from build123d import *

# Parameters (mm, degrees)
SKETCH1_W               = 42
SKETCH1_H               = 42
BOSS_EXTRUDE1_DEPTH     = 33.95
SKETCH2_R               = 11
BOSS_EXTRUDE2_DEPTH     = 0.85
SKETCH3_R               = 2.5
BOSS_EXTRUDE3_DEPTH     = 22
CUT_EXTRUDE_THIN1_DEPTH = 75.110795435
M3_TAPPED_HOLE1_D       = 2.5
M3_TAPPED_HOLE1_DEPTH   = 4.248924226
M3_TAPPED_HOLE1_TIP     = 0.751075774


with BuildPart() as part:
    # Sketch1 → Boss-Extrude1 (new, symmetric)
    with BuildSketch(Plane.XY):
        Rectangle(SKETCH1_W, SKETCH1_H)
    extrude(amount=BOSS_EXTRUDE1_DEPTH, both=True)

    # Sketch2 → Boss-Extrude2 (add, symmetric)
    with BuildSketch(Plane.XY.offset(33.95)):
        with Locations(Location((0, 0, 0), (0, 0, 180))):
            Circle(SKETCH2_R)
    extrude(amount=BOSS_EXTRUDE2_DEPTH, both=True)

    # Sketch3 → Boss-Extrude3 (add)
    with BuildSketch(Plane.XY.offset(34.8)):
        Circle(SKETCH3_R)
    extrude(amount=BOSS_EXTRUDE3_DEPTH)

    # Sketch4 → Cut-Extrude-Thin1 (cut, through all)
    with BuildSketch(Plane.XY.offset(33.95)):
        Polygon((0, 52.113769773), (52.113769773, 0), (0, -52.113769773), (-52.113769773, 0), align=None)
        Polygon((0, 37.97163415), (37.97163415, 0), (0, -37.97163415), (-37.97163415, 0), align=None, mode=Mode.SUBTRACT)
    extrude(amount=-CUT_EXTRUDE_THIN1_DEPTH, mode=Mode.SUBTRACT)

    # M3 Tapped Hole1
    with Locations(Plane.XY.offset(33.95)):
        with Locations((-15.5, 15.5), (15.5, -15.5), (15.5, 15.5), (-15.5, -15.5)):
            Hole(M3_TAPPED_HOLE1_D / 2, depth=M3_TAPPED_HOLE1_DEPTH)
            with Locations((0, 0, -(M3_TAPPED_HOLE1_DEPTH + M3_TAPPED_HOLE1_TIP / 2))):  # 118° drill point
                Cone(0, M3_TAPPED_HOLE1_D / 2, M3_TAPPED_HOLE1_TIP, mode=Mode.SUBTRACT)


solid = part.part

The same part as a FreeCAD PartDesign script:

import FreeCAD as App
import Part
import Sketcher

V = App.Vector

doc = App.newDocument("Part")
body = doc.addObject("PartDesign::Body", "Body")

# Sketch on XY plane
sketch1 = body.newObject("Sketcher::SketchObject", "Sketch")
sketch1.AttachmentSupport = (doc.getObject("XY_Plane"), [""])
sketch1.MapMode = "FlatFace"
sketch1.addGeometry(Part.LineSegment(V(-21, 21, 0), V(-21, -21, 0)), False)
sketch1.addGeometry(Part.LineSegment(V(-21, -21, 0), V(21, -21, 0)), False)
sketch1.addGeometry(Part.LineSegment(V(21, -21, 0), V(21, 21, 0)), False)
sketch1.addGeometry(Part.LineSegment(V(21, 21, 0), V(-21, 21, 0)), False)
sketch1.addConstraint(Sketcher.Constraint("Coincident", 0, 2, 1, 1))
sketch1.addConstraint(Sketcher.Constraint("Coincident", 1, 2, 2, 1))
sketch1.addConstraint(Sketcher.Constraint("Coincident", 2, 2, 3, 1))
sketch1.addConstraint(Sketcher.Constraint("Coincident", 3, 2, 0, 1))
sketch1.addConstraint(Sketcher.Constraint("Vertical", 0))
sketch1.addConstraint(Sketcher.Constraint("Horizontal", 1))
sketch1.addConstraint(Sketcher.Constraint("Vertical", 2))
sketch1.addConstraint(Sketcher.Constraint("Horizontal", 3))
sketch1.addConstraint(Sketcher.Constraint("Symmetric", 0, 2, 2, 2, -1, 1))
sketch1.addConstraint(Sketcher.Constraint("Equal", 3, 0))
sketch1.addConstraint(Sketcher.Constraint("DistanceX", 1, 1, 1, 2, 42.0))
pad1 = body.newObject("PartDesign::Pad", "Pad")
pad1.Profile = sketch1
pad1.Length = 67.9
pad1.Midplane = True

# Sketch on XY plane
sketch2 = body.newObject("Sketcher::SketchObject", "Sketch001")
sketch2.AttachmentSupport = (doc.getObject("XY_Plane"), [""])
sketch2.MapMode = "FlatFace"
sketch2.AttachmentOffset = App.Placement(V(0, 0, 33.95), App.Rotation())
sketch2.addGeometry(Part.Circle(V(0, 0, 0), V(0, 0, 1), 11), False)
sketch2.addConstraint(Sketcher.Constraint("Coincident", 0, 3, -1, 1))
sketch2.addConstraint(Sketcher.Constraint("Diameter", 0, 22.0))
pad2 = body.newObject("PartDesign::Pad", "Pad001")
pad2.Profile = sketch2
pad2.Length = 1.7
pad2.Midplane = True

# Sketch on XY plane
sketch3 = body.newObject("Sketcher::SketchObject", "Sketch002")
sketch3.AttachmentSupport = (doc.getObject("XY_Plane"), [""])
sketch3.MapMode = "FlatFace"
sketch3.AttachmentOffset = App.Placement(V(0, 0, 34.8), App.Rotation())
sketch3.addGeometry(Part.Circle(V(0, 0, 0), V(0, 0, 1), 2.5), False)
sketch3.addConstraint(Sketcher.Constraint("Coincident", 0, 3, -1, 1))
sketch3.addConstraint(Sketcher.Constraint("Diameter", 0, 5.0))
pad3 = body.newObject("PartDesign::Pad", "Pad002")
pad3.Profile = sketch3
pad3.Length = 22

# Sketch on XY plane
sketch4 = body.newObject("Sketcher::SketchObject", "Sketch003")
sketch4.AttachmentSupport = (doc.getObject("XY_Plane"), [""])
sketch4.MapMode = "FlatFace"
sketch4.AttachmentOffset = App.Placement(V(0, 0, 33.95), App.Rotation())
sketch4.addGeometry(Part.LineSegment(V(52, 0, 0), V(0, 52, 0)), False)
sketch4.addGeometry(Part.LineSegment(V(0, 52, 0), V(-52, 0, 0)), False)
sketch4.addGeometry(Part.LineSegment(V(-52, 0, 0), V(0, -52, 0)), False)
sketch4.addGeometry(Part.LineSegment(V(0, -52, 0), V(52, 0, 0)), False)
sketch4.addGeometry(Part.LineSegment(V(0, 38, 0), V(38, 0, 0)), False)
sketch4.addGeometry(Part.LineSegment(V(38, 0, 0), V(0, -38, 0)), False)
sketch4.addGeometry(Part.LineSegment(V(0, -38, 0), V(-38, 0, 0)), False)
sketch4.addGeometry(Part.LineSegment(V(-38, 0, 0), V(0, 38, 0)), False)
sketch4.addConstraint(Sketcher.Constraint("Coincident", 0, 2, 1, 1))
sketch4.addConstraint(Sketcher.Constraint("Coincident", 1, 2, 2, 1))
sketch4.addConstraint(Sketcher.Constraint("Coincident", 2, 2, 3, 1))
sketch4.addConstraint(Sketcher.Constraint("Coincident", 3, 2, 0, 1))
sketch4.addConstraint(Sketcher.Constraint("Coincident", 4, 2, 5, 1))
sketch4.addConstraint(Sketcher.Constraint("Coincident", 5, 2, 6, 1))
sketch4.addConstraint(Sketcher.Constraint("Coincident", 6, 2, 7, 1))
sketch4.addConstraint(Sketcher.Constraint("Coincident", 7, 2, 4, 1))
sketch4.addConstraint(Sketcher.Constraint("Symmetric", 0, 2, 2, 2, -1, 1))
sketch4.addConstraint(Sketcher.Constraint("Symmetric", 1, 2, 3, 2, -1, 1))
sketch4.addConstraint(Sketcher.Constraint("Symmetric", 4, 2, 6, 2, -1, 1))
sketch4.addConstraint(Sketcher.Constraint("Symmetric", 5, 2, 7, 2, -1, 1))
sketch4.addConstraint(Sketcher.Constraint("PointOnObject", 0, 2, -2))
sketch4.addConstraint(Sketcher.Constraint("PointOnObject", 1, 2, -1))
sketch4.addConstraint(Sketcher.Constraint("PointOnObject", 4, 2, -1))
sketch4.addConstraint(Sketcher.Constraint("PointOnObject", 5, 2, -2))
sketch4.addConstraint(Sketcher.Constraint("Perpendicular", 0, 1))
sketch4.addConstraint(Sketcher.Constraint("Perpendicular", 3, 4))
sketch4.addConstraint(Sketcher.Constraint("Distance", 0, 73.7))
sketch4.addConstraint(Sketcher.Constraint("Distance", 4, 53.7))
pocket1 = body.newObject("PartDesign::Pocket", "Pocket")
pocket1.Profile = sketch4
pocket1.Type = "ThroughAll"

# Sketch on XY plane
sketch5 = body.newObject("Sketcher::SketchObject", "Sketch004")
sketch5.AttachmentSupport = (doc.getObject("XY_Plane"), [""])
sketch5.MapMode = "FlatFace"
sketch5.AttachmentOffset = App.Placement(V(0, 0, 33.95), App.Rotation())
sketch5.addGeometry(Part.Circle(V(-15.5, 15.5, 0), V(0, 0, 1), 1.2), False)
sketch5.addGeometry(Part.Circle(V(15.5, -15.5, 0), V(0, 0, 1), 1.2), False)
sketch5.addGeometry(Part.Circle(V(15.5, 15.5, 0), V(0, 0, 1), 1.2), False)
sketch5.addGeometry(Part.Circle(V(-15.5, -15.5, 0), V(0, 0, 1), 1.2), False)
sketch5.addConstraint(Sketcher.Constraint("Equal", 0, 1))
sketch5.addConstraint(Sketcher.Constraint("Equal", 1, 2))
sketch5.addConstraint(Sketcher.Constraint("Equal", 2, 3))
sketch5.addConstraint(Sketcher.Constraint("Symmetric", 0, 3, 1, 3, -1, 1))
sketch5.addConstraint(Sketcher.Constraint("Symmetric", 2, 3, 3, 3, -1, 1))
sketch5.addConstraint(Sketcher.Constraint("Symmetric", 0, 3, 2, 3, -2))
sketch5.addConstraint(Sketcher.Constraint("Diameter", 0, 2.5))
sketch5.addConstraint(Sketcher.Constraint("DistanceX", 0, 3, 1, 3, 31.0))
sketch5.addConstraint(Sketcher.Constraint("DistanceY", 1, 3, 0, 3, 31.0))
doc.recompute()
hole = body.newObject("PartDesign::Hole", "Hole")
hole.Profile = sketch5
hole.ThreadType = "None"
hole.Diameter = 2.5
hole.DepthType = "Dimension"
hole.Depth = 4.248924
hole.DrillPoint = "Angled"
hole.DrillPointAngle = 118

doc.recompute()
